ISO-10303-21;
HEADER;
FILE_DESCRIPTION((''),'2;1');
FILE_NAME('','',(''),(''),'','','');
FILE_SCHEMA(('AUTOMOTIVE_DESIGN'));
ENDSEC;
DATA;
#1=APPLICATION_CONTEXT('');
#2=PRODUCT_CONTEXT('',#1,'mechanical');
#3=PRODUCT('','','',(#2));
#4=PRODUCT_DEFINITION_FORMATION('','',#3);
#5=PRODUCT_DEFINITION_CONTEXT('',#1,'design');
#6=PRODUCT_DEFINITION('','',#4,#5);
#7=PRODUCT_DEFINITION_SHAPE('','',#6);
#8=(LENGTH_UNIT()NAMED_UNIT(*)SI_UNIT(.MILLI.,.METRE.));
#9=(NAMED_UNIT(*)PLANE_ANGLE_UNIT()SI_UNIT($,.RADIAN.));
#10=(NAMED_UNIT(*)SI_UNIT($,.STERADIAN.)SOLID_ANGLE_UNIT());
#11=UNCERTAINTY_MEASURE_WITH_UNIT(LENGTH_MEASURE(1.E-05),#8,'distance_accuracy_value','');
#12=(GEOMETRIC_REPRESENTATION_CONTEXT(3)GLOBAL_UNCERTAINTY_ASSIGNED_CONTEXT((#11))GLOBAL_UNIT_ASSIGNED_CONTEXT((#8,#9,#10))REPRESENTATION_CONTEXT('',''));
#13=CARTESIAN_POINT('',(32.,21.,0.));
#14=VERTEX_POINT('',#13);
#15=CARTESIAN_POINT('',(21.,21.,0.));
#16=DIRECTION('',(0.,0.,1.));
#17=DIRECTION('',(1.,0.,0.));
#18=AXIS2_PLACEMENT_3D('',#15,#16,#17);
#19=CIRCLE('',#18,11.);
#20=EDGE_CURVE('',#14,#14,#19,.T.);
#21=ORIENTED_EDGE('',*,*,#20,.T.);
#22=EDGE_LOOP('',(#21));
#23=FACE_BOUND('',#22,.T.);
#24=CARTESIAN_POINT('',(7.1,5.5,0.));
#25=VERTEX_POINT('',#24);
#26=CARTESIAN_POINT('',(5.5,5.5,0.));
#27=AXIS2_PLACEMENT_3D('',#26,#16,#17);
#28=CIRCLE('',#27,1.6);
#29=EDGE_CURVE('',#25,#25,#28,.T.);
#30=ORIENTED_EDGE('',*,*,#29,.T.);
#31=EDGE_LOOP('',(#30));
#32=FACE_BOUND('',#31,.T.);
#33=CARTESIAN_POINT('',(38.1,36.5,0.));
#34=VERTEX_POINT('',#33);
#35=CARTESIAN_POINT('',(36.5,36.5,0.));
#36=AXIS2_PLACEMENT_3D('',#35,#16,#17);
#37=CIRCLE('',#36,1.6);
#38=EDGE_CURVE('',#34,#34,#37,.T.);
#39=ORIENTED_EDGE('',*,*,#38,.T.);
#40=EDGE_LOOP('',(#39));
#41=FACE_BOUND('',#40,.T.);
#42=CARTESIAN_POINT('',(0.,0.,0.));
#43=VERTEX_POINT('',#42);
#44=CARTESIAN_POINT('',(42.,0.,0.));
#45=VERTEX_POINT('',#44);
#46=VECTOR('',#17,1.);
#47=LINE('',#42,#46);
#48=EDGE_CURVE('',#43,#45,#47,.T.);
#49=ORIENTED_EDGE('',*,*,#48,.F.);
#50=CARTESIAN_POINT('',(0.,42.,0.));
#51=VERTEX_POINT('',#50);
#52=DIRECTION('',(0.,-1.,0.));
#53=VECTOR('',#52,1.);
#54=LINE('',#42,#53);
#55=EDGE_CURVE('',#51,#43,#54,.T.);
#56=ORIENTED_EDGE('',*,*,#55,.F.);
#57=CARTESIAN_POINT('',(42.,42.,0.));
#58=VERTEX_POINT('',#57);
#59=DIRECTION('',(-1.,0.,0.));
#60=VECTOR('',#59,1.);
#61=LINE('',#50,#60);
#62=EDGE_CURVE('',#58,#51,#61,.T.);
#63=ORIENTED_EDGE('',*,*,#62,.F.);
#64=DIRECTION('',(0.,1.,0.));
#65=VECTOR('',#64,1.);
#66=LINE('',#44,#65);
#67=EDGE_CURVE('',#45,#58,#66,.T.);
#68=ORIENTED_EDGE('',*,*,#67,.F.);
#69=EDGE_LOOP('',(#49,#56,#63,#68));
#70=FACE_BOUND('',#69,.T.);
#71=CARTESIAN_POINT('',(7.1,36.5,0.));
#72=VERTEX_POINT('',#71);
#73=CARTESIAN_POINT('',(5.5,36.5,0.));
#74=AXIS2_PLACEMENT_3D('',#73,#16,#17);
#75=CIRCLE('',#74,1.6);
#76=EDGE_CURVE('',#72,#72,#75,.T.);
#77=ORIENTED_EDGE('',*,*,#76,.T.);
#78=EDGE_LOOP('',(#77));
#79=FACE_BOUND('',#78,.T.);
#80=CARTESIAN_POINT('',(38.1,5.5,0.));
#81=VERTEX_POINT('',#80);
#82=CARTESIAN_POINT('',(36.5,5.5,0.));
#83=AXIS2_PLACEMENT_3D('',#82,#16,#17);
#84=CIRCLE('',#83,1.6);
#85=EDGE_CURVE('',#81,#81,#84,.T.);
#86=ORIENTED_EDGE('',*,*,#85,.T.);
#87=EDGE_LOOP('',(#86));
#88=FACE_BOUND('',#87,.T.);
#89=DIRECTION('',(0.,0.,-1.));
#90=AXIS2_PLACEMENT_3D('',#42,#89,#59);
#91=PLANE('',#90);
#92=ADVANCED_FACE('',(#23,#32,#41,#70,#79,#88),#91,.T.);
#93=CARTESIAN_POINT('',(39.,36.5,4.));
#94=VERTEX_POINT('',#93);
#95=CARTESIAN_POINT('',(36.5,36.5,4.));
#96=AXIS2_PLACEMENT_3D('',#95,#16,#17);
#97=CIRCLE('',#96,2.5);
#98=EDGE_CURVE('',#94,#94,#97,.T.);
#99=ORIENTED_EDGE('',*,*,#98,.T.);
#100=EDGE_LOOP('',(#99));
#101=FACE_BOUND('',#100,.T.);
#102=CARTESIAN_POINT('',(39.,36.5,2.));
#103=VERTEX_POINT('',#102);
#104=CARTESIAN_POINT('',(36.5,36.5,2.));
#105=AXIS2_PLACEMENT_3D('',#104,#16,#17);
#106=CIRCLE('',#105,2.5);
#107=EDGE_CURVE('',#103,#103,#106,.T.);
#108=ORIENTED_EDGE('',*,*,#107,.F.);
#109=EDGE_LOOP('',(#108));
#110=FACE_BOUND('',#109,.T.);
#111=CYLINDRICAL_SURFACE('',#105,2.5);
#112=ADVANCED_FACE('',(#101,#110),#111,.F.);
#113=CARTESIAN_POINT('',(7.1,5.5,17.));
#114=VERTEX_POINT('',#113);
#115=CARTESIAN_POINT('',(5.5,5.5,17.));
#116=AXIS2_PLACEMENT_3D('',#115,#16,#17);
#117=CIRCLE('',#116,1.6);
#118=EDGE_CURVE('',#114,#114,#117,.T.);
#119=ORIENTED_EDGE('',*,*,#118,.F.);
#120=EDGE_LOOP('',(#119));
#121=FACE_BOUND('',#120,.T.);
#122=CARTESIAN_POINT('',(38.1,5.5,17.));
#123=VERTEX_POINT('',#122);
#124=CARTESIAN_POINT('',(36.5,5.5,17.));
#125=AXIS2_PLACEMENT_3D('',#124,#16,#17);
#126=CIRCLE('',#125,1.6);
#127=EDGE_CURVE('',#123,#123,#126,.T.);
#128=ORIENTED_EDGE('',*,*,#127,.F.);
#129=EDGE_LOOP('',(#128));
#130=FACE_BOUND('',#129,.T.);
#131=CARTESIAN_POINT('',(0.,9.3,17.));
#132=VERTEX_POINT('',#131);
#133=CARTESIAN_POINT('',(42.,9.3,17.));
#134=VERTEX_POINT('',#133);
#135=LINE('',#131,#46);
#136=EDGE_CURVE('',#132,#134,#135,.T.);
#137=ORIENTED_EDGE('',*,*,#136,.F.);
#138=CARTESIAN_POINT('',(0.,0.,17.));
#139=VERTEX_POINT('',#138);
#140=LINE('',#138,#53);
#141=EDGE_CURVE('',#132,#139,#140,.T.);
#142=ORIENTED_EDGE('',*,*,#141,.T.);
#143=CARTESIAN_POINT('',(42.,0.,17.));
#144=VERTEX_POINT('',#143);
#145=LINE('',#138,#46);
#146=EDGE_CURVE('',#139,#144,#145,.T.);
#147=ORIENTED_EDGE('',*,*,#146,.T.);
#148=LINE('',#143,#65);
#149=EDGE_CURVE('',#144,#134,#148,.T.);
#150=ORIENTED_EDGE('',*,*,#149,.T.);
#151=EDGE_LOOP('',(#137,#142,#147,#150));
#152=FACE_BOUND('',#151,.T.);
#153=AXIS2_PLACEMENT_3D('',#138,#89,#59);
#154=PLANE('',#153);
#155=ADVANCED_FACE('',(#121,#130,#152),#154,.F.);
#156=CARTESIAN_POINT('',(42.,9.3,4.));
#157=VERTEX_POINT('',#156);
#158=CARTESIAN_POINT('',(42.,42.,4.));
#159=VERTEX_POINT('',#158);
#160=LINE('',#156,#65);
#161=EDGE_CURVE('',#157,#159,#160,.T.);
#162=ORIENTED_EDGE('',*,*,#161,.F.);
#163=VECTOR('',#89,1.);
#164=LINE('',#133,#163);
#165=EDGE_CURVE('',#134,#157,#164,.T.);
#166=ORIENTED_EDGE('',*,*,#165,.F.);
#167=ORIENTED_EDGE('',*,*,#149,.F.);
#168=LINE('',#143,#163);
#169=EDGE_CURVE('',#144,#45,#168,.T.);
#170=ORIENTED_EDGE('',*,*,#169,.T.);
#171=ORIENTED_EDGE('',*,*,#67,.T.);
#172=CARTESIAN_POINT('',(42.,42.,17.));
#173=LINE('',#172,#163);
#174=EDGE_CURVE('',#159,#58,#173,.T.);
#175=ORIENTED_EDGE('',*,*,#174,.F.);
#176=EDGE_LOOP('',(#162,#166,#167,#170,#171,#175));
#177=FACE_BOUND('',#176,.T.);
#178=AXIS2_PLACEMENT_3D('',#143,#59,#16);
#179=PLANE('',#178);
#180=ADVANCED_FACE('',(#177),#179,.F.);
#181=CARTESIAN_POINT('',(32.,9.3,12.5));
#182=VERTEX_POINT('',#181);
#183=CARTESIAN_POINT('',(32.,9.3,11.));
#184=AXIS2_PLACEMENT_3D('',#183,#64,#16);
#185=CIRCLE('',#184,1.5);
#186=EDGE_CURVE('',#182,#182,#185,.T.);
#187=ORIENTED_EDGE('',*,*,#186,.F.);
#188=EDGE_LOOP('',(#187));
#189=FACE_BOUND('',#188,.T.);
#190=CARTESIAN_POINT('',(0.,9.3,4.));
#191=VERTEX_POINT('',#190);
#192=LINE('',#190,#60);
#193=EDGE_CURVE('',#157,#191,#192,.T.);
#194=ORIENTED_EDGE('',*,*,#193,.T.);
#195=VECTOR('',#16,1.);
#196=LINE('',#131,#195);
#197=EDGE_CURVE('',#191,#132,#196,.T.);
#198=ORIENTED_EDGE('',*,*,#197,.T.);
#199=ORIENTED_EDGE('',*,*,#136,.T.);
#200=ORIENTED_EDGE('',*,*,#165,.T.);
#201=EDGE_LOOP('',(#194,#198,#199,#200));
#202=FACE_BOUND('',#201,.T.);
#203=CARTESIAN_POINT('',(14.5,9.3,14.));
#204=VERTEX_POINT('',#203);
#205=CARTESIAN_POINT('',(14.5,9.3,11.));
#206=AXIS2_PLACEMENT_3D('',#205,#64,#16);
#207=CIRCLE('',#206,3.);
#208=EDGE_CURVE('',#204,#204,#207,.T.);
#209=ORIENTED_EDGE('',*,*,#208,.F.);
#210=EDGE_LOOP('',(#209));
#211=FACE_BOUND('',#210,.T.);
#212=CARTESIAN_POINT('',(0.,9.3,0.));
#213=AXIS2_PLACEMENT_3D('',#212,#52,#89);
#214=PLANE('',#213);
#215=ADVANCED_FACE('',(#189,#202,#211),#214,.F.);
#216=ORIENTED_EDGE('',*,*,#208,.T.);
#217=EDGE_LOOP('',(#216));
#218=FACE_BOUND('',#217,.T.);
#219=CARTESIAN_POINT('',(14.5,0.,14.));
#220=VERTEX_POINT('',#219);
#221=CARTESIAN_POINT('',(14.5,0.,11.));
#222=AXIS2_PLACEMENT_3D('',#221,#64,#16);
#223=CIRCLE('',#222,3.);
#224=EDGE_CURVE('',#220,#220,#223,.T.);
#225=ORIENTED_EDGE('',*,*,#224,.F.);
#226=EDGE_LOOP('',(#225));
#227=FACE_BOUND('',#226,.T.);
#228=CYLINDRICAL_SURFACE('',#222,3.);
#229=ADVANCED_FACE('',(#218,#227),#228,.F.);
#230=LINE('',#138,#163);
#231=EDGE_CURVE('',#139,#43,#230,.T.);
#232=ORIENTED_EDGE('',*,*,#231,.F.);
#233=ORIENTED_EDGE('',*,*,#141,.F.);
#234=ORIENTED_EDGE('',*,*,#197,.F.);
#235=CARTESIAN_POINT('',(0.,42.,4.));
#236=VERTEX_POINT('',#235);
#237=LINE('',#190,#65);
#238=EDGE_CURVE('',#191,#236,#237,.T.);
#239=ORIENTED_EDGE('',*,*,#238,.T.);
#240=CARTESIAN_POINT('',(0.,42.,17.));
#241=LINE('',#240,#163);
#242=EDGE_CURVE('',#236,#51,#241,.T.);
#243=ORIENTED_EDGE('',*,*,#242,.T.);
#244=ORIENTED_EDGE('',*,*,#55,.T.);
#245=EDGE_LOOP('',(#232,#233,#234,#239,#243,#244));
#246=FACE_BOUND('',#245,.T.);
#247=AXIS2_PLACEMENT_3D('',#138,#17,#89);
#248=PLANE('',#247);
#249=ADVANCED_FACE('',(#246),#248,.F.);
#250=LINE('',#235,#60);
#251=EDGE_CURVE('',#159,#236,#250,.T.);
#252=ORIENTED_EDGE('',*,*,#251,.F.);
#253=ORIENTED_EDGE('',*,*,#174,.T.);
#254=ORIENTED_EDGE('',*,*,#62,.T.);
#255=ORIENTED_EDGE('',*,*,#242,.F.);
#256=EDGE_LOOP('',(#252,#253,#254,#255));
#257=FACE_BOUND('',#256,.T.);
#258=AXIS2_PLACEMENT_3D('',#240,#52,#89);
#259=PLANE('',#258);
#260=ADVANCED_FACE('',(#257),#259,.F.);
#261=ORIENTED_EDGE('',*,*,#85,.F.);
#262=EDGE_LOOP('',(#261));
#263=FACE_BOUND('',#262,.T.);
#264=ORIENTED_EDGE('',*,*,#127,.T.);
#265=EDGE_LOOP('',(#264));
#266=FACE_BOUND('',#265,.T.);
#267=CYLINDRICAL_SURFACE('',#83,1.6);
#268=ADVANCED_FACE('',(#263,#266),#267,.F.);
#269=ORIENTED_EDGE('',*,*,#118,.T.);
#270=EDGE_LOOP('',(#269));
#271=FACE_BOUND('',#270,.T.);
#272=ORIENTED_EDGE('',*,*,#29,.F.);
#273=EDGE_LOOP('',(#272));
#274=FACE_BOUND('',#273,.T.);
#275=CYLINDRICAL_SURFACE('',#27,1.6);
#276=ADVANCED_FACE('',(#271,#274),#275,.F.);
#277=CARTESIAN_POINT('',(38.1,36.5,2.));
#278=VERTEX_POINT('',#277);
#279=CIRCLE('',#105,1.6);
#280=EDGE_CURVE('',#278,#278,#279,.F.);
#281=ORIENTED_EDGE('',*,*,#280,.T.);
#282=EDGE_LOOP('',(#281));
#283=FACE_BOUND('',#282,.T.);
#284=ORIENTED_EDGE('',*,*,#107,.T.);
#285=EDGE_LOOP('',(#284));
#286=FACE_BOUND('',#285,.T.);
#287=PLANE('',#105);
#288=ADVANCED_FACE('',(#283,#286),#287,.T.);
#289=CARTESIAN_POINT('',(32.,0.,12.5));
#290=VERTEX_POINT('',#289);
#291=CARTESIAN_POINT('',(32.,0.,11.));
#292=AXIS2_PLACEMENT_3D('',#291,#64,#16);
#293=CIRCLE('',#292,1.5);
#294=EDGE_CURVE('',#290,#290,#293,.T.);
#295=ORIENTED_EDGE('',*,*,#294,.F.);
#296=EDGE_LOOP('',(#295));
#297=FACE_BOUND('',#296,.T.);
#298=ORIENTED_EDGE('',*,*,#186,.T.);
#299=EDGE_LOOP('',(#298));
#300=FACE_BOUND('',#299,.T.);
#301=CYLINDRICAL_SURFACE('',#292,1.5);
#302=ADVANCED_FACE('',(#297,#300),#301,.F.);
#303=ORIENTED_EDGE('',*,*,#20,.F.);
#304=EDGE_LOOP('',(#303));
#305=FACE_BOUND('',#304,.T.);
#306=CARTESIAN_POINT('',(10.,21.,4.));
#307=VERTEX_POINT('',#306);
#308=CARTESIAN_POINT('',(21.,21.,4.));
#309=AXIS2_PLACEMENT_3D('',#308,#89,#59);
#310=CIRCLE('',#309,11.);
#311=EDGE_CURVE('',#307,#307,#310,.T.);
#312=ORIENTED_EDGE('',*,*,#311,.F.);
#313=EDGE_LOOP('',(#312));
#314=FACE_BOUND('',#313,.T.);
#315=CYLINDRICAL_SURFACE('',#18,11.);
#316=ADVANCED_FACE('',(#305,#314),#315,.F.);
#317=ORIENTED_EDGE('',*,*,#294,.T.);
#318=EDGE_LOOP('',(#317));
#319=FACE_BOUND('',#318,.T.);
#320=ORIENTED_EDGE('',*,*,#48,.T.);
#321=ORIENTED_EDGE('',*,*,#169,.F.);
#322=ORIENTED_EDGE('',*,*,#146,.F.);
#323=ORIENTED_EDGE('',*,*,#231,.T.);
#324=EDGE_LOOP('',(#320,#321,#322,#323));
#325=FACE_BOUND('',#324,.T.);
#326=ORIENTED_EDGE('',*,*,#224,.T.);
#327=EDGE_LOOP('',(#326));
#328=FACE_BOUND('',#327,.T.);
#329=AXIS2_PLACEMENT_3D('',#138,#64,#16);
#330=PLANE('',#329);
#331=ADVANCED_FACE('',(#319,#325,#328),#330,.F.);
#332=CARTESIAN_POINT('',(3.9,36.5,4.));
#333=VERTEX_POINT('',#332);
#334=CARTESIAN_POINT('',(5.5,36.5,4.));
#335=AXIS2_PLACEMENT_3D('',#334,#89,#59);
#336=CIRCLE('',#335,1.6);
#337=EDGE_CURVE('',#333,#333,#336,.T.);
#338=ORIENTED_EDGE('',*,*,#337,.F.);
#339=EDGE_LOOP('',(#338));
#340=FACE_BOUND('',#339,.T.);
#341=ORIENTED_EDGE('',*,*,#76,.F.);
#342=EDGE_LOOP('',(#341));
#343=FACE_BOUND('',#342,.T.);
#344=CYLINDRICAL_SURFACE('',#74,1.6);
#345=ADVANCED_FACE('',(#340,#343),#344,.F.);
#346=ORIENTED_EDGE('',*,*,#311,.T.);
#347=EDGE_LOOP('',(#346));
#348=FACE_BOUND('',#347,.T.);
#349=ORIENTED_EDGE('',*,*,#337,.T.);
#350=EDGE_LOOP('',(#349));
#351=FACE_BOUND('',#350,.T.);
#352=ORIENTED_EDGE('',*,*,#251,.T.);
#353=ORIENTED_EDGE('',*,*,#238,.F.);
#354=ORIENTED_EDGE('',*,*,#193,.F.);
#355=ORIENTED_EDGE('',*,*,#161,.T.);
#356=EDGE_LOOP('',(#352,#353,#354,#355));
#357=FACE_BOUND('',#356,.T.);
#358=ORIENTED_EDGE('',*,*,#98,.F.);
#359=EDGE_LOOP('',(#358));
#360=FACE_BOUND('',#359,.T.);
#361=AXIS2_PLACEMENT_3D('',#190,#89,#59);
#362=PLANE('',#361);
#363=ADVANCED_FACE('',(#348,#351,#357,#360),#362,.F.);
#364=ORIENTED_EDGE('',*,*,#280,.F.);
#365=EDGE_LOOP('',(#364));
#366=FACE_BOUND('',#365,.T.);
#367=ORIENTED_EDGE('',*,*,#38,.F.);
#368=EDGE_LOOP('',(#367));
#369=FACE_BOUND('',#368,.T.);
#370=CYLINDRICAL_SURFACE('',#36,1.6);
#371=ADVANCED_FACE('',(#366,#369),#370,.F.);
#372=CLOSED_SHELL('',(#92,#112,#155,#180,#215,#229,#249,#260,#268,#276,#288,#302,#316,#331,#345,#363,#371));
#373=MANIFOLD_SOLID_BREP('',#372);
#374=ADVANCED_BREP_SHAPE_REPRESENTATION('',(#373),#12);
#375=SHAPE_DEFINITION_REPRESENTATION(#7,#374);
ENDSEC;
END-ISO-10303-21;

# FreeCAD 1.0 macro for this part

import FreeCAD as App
import Part
import Sketcher
from FreeCAD import Vector
Q = App.Units.Quantity


def add_polygon(sketch, points):
    """Adds a closed chain of lines whose ends are joined by coincident constraints."""
    first, n = sketch.GeometryCount, len(points)
    for a, b in zip(points, points[1:] + points[:1]):
        sketch.addGeometry(Part.LineSegment(App.Vector(*a, 0), App.Vector(*b, 0)), False)
    for i in range(n):
        sketch.addConstraint(Sketcher.Constraint("Coincident", first + i, 2, first + (i + 1) % n, 1))

doc = App.newDocument("Part")
body = doc.addObject("PartDesign::Body", "Body")

# Sketch on XY plane
sketch1 = body.newObject("Sketcher::SketchObject", "Sketch")
sketch1.AttachmentSupport = (doc.getObject("XY_Plane"), [""])
sketch1.MapMode = "FlatFace"
add_polygon(sketch1, [(0, 42), (0, 0), (42, 0), (42, 42)])  # lines 0-3
sketch1.addConstraint([
    Sketcher.Constraint("Vertical", 0),
    Sketcher.Constraint("Horizontal", 1),
    Sketcher.Constraint("Vertical", 2),
    Sketcher.Constraint("Horizontal", 3),
    Sketcher.Constraint("Coincident", 0, 2, -1, 1),
    Sketcher.Constraint("Equal", 3, 0),
    Sketcher.Constraint("DistanceX", 1, 1, 1, 2, Q("42 mm")),
])
pad1 = body.newObject("PartDesign::Pad", "Pad")
pad1.Profile = sketch1
pad1.Length = 17

# Sketch on XZ plane
sketch2 = body.newObject("Sketcher::SketchObject", "Sketch001")
sketch2.AttachmentSupport = (doc.getObject("XZ_Plane"), [""])
sketch2.MapMode = "FlatFace"
sketch2.AttachmentOffset = App.Placement(Vector(0, 0, -42), App.Rotation())
add_polygon(sketch2, [(0, 4), (0, 17), (42, 17), (42, 4)])  # lines 0-3
sketch2.addConstraint([
    Sketcher.Constraint("Vertical", 0),
    Sketcher.Constraint("Horizontal", 1),
    Sketcher.Constraint("Vertical", 2),
    Sketcher.Constraint("Horizontal", 3),
    Sketcher.Constraint("PointOnObject", 0, 2, -2),
    Sketcher.Constraint("DistanceX", 1, 1, 1, 2, Q("42 mm")),
    Sketcher.Constraint("DistanceY", 0, 1, 0, 2, Q("13 mm")),
    Sketcher.Constraint("DistanceY", -1, 1, 0, 2, Q("17 mm")),
])
pocket1 = body.newObject("PartDesign::Pocket", "Pocket")
pocket1.Profile = sketch2
pocket1.Length = 32.7
pocket1.Reversed = True

# Sketch on XY plane
sketch3 = body.newObject("Sketcher::SketchObject", "Sketch002")
sketch3.AttachmentSupport = (doc.getObject("XY_Plane"), [""])
sketch3.MapMode = "FlatFace"
sketch3.AttachmentOffset = App.Placement(Vector(0, 0, 4), App.Rotation())
sketch3.addGeometry([
    Part.Circle(Vector(36.5, 36.5, 0), Vector(0, 0, 1), 1.6),  # 0
    Part.Circle(Vector(5.5, 36.5, 0), Vector(0, 0, 1), 1.6),  # 1
    Part.Circle(Vector(21, 21, 0), Vector(0, 0, 1), 11),  # 2
    Part.Circle(Vector(5.5, 5.5, 0), Vector(0, 0, 1), 1.6),  # 3
    Part.Circle(Vector(36.5, 5.5, 0), Vector(0, 0, 1), 1.6),  # 4
], False)
sketch3.addConstraint([
    Sketcher.Constraint("Equal", 0, 1),
    Sketcher.Constraint("Equal", 1, 3),
    Sketcher.Constraint("Equal", 3, 4),
    Sketcher.Constraint("Horizontal", 0, 3, 1, 3),
    Sketcher.Constraint("Horizontal", 3, 3, 4, 3),
    Sketcher.Constraint("Vertical", 1, 3, 3, 3),
    Sketcher.Constraint("Vertical", 0, 3, 4, 3),
    Sketcher.Constraint("Diameter", 2, Q("22 mm")),
    Sketcher.Constraint("Diameter", 0, Q("3.2 mm")),
    Sketcher.Constraint("DistanceX", -1, 1, 2, 3, Q("21 mm")),
    Sketcher.Constraint("DistanceY", -1, 1, 2, 3, Q("21 mm")),
    Sketcher.Constraint("DistanceX", 1, 3, 0, 3, Q("31 mm")),
    Sketcher.Constraint("DistanceY", 3, 3, 1, 3, Q("31 mm")),
    Sketcher.Constraint("DistanceX", -1, 1, 0, 3, Q("36.5 mm")),
    Sketcher.Constraint("DistanceY", -1, 1, 0, 3, Q("36.5 mm")),
])
pocket2 = body.newObject("PartDesign::Pocket", "Pocket001")
pocket2.Profile = sketch3
pocket2.Type = "ThroughAll"
pocket2.Midplane = True

# Sketch on XY plane
sketch4 = body.newObject("Sketcher::SketchObject", "Sketch003")
sketch4.AttachmentSupport = (doc.getObject("XY_Plane"), [""])
sketch4.MapMode = "FlatFace"
sketch4.AttachmentOffset = App.Placement(Vector(0, 0, 4), App.Rotation())
sketch4.addGeometry(Part.Circle(Vector(36.5, 36.5, 0), Vector(0, 0, 1), 2.5), False)
sketch4.addConstraint([
    Sketcher.Constraint("Diameter", 0, Q("5 mm")),
    Sketcher.Constraint("DistanceX", -1, 1, 0, 3, Q("36.5 mm")),
    Sketcher.Constraint("DistanceY", -1, 1, 0, 3, Q("36.5 mm")),
])
pocket3 = body.newObject("PartDesign::Pocket", "Pocket002")
pocket3.Profile = sketch4
pocket3.Length = 2

# Sketch on XZ plane
sketch5 = body.newObject("Sketcher::SketchObject", "Sketch004")
sketch5.AttachmentSupport = (doc.getObject("XZ_Plane"), [""])
sketch5.MapMode = "FlatFace"
sketch5.AttachmentOffset = App.Placement(Vector(0, 0, -9.3), App.Rotation())
sketch5.addGeometry([
    Part.Circle(Vector(32, 11, 0), Vector(0, 0, 1), 1.5),
    Part.Circle(Vector(14.5, 11, 0), Vector(0, 0, 1), 3),
], False)
sketch5.addConstraint([
    Sketcher.Constraint("Horizontal", 0, 3, 1, 3),
    Sketcher.Constraint("Diameter", 0, Q("3 mm")),
    Sketcher.Constraint("Diameter", 1, Q("6 mm")),
    Sketcher.Constraint("DistanceX", -1, 1, 0, 3, Q("32 mm")),
    Sketcher.Constraint("DistanceY", -1, 1, 0, 3, Q("11 mm")),
    Sketcher.Constraint("DistanceX", -1, 1, 1, 3, Q("14.5 mm")),
])
pocket4 = body.newObject("PartDesign::Pocket", "Pocket003")
pocket4.Profile = sketch5
pocket4.Type = "ThroughAll"
pocket4.Reversed = True

doc.recompute()
